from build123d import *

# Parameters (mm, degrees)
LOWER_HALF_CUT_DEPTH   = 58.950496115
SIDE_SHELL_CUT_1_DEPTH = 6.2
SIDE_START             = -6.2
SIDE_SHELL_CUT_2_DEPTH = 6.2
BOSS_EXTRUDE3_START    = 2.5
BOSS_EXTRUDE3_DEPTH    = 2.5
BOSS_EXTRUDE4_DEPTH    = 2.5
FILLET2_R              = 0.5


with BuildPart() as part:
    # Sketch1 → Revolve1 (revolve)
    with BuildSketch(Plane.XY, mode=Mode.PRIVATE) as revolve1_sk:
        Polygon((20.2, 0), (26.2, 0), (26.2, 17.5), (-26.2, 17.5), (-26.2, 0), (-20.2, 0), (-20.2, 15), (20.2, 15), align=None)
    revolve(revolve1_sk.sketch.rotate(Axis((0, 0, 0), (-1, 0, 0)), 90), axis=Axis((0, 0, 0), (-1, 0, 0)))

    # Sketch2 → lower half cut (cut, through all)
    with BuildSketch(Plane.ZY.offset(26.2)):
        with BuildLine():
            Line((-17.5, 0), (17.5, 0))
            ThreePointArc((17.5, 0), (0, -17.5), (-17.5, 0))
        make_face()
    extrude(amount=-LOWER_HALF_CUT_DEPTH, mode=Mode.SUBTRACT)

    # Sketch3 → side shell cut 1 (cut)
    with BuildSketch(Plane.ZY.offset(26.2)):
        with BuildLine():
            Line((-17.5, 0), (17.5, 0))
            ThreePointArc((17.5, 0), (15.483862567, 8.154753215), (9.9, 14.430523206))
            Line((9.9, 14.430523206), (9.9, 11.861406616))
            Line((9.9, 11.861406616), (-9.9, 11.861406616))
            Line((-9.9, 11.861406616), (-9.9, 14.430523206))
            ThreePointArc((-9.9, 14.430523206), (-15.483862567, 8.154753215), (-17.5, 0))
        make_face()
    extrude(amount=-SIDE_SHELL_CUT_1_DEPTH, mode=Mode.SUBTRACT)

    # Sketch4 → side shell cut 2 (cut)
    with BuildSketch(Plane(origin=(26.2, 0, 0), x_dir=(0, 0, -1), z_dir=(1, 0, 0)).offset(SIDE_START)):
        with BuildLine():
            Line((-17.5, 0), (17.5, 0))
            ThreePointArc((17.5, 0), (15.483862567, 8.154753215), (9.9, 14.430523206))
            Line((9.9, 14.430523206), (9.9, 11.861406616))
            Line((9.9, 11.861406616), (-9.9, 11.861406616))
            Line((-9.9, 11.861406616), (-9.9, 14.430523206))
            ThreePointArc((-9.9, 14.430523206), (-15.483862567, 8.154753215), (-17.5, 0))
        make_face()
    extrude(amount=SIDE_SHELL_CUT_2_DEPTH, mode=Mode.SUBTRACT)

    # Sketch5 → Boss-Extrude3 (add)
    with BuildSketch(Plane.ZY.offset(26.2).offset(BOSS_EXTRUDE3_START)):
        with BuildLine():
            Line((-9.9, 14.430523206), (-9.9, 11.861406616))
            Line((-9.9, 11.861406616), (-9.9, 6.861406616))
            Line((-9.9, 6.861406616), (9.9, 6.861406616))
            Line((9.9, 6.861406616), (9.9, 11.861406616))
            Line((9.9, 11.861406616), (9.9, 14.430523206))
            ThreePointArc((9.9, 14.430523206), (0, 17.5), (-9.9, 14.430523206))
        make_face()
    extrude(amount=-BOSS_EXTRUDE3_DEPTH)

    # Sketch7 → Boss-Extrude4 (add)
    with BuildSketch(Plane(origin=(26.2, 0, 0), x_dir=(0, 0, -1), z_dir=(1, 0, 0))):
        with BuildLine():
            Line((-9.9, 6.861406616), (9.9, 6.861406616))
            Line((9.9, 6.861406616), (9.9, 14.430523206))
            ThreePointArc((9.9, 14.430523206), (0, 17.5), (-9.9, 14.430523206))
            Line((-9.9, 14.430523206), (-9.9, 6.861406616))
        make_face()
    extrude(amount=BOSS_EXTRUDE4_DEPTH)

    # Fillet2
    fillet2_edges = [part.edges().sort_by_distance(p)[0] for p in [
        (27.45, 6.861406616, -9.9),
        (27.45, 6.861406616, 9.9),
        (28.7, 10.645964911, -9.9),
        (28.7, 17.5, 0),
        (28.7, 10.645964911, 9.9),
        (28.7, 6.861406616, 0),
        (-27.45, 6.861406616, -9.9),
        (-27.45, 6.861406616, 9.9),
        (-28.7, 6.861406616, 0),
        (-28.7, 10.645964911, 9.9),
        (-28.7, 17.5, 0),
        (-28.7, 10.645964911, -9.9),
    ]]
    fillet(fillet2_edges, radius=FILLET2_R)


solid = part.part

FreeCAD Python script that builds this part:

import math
import FreeCAD as App
import Part
import Sketcher
from FreeCAD import Vector
Q = App.Units.Quantity


def edges_at(feature, points):
    """Names of the edges that pass closest to the given points."""
    edges = feature.Shape.Edges
    near = lambda p: min(range(len(edges)), key=lambda i: edges[i].distToShape(Part.Vertex(*p))[0])
    return sorted({f"Edge{near(p) + 1}" for p in points})


def add_polygon(sketch, points):
    """Adds a closed chain of lines whose ends are joined by coincident constraints."""
    first, n = sketch.GeometryCount, len(points)
    for a, b in zip(points, points[1:] + points[:1]):
        sketch.addGeometry(Part.LineSegment(App.Vector(*a, 0), App.Vector(*b, 0)), False)
    for i in range(n):
        sketch.addConstraint(Sketcher.Constraint("Coincident", first + i, 2, first + (i + 1) % n, 1))

doc = App.newDocument("Part")
body = doc.addObject("PartDesign::Body", "Body")

# Sketch on XY plane
sketch1 = doc.addObject("Sketcher::SketchObject", "Sketch")
body.addObject(sketch1)
sketch1.AttachmentSupport = (doc.XY_Plane, [""])
sketch1.MapMode = "FlatFace"
add_polygon(sketch1, [(20, 0), (26, 0), (26, 18), (-26, 18), (-26, 0), (-20, 0), (-20, 15), (20, 15)])  # lines 0-7
sketch1.addConstraint([
    Sketcher.Constraint("Horizontal", 0),
    Sketcher.Constraint("Vertical", 1),
    Sketcher.Constraint("Horizontal", 2),
    Sketcher.Constraint("Vertical", 3),
    Sketcher.Constraint("Horizontal", 4),
    Sketcher.Constraint("Vertical", 5),
    Sketcher.Constraint("Horizontal", 6),
    Sketcher.Constraint("Vertical", 7),
    Sketcher.Constraint("Symmetric", 0, 2, 3, 2, -1, 1),
    Sketcher.Constraint("Symmetric", 4, 2, 7, 2, -2),
    Sketcher.Constraint("DistanceX", 0, 1, 0, 2, Q("6 mm")),
    Sketcher.Constraint("DistanceY", 5, 1, 5, 2, Q("15 mm")),
    Sketcher.Constraint("DistanceX", 2, 2, 2, 1, Q("52.4 mm")),
    Sketcher.Constraint("DistanceY", 1, 1, 1, 2, Q("17.5 mm")),
])
revolution = doc.addObject("PartDesign::Revolution", "Revolution")
body.addObject(revolution)
revolution.Profile = sketch1
revolution.ReferenceAxis = (sketch1, ["H_Axis"])
revolution.Angle = 360

# Sketch on YZ plane
sketch2 = doc.addObject("Sketcher::SketchObject", "Sketch001")
body.addObject(sketch2)
sketch2.AttachmentSupport = (doc.YZ_Plane, [""])
sketch2.MapMode = "FlatFace"
sketch2.AttachmentOffset = App.Placement(Vector(0, 0, -26.2), App.Rotation())
sketch2.addGeometry([
    Part.LineSegment(Vector(0, 18, 0), Vector(0, -18, 0)),
    Part.ArcOfCircle(Part.Circle(Vector(0, 0, 0), Vector(0, 0, 1), 18), math.radians(90), math.radians(270)),
], False)
sketch2.addConstraint([
    Sketcher.Constraint("Coincident", 0, 1, 1, 1),
    Sketcher.Constraint("Coincident", 1, 2, 0, 2),
    Sketcher.Constraint("Vertical", 0),
    Sketcher.Constraint("Coincident", 1, 3, -1, 1),
    Sketcher.Constraint("PointOnObject", 0, 1, -2),
    Sketcher.Constraint("Radius", 1, Q("17.5 mm")),
])
pocket1 = doc.addObject("PartDesign::Pocket", "Pocket")
body.addObject(pocket1)
pocket1.Profile = sketch2
pocket1.Type = "ThroughAll"
pocket1.Reversed = True

# Sketch on YZ plane
sketch3 = doc.addObject("Sketcher::SketchObject", "Sketch002")
body.addObject(sketch3)
sketch3.AttachmentSupport = (doc.YZ_Plane, [""])
sketch3.MapMode = "FlatFace"
sketch3.AttachmentOffset = App.Placement(Vector(0, 0, -26.2), App.Rotation())
sketch3.addGeometry([
    Part.LineSegment(Vector(0, -17.5, 0), Vector(0, 17.5, 0)),  # 0
    Part.ArcOfCircle(Part.Circle(Vector(0, 0, 0), Vector(0, 0, 1), 17.5), math.radians(34), math.radians(90)),  # 1
    Part.LineSegment(Vector(14.4, 9.9, 0), Vector(11.9, 9.9, 0)),  # 2
    Part.LineSegment(Vector(11.9, 9.9, 0), Vector(11.9, -9.9, 0)),  # 3
    Part.LineSegment(Vector(11.9, -9.9, 0), Vector(14.4, -9.9, 0)),  # 4
    Part.ArcOfCircle(Part.Circle(Vector(0, 0, 0), Vector(0, 0, 1), 17.5), math.radians(-90), math.radians(-34)),  # 5
], False)
sketch3.addConstraint([
    Sketcher.Constraint("Coincident", 0, 2, 1, 2),
    Sketcher.Constraint("Coincident", 1, 1, 2, 1),
    Sketcher.Constraint("Coincident", 2, 2, 3, 1),
    Sketcher.Constraint("Coincident", 3, 2, 4, 1),
    Sketcher.Constraint("Coincident", 4, 2, 5, 2),
    Sketcher.Constraint("Coincident", 5, 1, 0, 1),
    Sketcher.Constraint("Vertical", 0),
    Sketcher.Constraint("Horizontal", 2),
    Sketcher.Constraint("Vertical", 3),
    Sketcher.Constraint("Horizontal", 4),
    Sketcher.Constraint("Coincident", 1, 3, -1, 1),
    Sketcher.Constraint("Coincident", 5, 3, -1, 1),
    Sketcher.Constraint("Equal", 1, 5),
    Sketcher.Constraint("PointOnObject", 0, 2, -2),
    Sketcher.Constraint("Vertical", 1, 1, 4, 2),
    Sketcher.Constraint("Radius", 1, Q("17.5 mm")),
    Sketcher.Constraint("DistanceY", 3, 2, 3, 1, Q("19.8 mm")),
    Sketcher.Constraint("DistanceX", 2, 2, 2, 1, Q("2.569117 mm")),
])
pocket2 = doc.addObject("PartDesign::Pocket", "Pocket001")
body.addObject(pocket2)
pocket2.Profile = sketch3
pocket2.Length = 6.2
pocket2.Reversed = True

# Sketch on YZ plane
sketch4 = doc.addObject("Sketcher::SketchObject", "Sketch003")
body.addObject(sketch4)
sketch4.AttachmentSupport = (doc.YZ_Plane, [""])
sketch4.MapMode = "FlatFace"
sketch4.AttachmentOffset = App.Placement(Vector(0, 0, 20), App.Rotation())
sketch4.addGeometry([
    Part.LineSegment(Vector(0, 17.5, 0), Vector(0, -17.5, 0)),  # 0
    Part.ArcOfCircle(Part.Circle(Vector(0, 0, 0), Vector(0, 0, 1), 17.5), math.radians(-90), math.radians(-34)),  # 1
    Part.LineSegment(Vector(14.4, -9.9, 0), Vector(11.9, -9.9, 0)),  # 2
    Part.LineSegment(Vector(11.9, -9.9, 0), Vector(11.9, 9.9, 0)),  # 3
    Part.LineSegment(Vector(11.9, 9.9, 0), Vector(14.4, 9.9, 0)),  # 4
    Part.ArcOfCircle(Part.Circle(Vector(0, 0, 0), Vector(0, 0, 1), 17.5), math.radians(34), math.radians(90)),  # 5
], False)
sketch4.addConstraint([
    Sketcher.Constraint("Coincident", 0, 2, 1, 1),
    Sketcher.Constraint("Coincident", 1, 2, 2, 1),
    Sketcher.Constraint("Coincident", 2, 2, 3, 1),
    Sketcher.Constraint("Coincident", 3, 2, 4, 1),
    Sketcher.Constraint("Coincident", 4, 2, 5, 1),
    Sketcher.Constraint("Coincident", 5, 2, 0, 1),
    Sketcher.Constraint("Vertical", 0),
    Sketcher.Constraint("Horizontal", 2),
    Sketcher.Constraint("Vertical", 3),
    Sketcher.Constraint("Horizontal", 4),
    Sketcher.Constraint("Coincident", 1, 3, -1, 1),
    Sketcher.Constraint("Coincident", 5, 3, -1, 1),
    Sketcher.Constraint("Equal", 1, 5),
    Sketcher.Constraint("PointOnObject", 0, 2, -2),
    Sketcher.Constraint("Vertical", 1, 2, 4, 2),
    Sketcher.Constraint("Radius", 1, Q("17.5 mm")),
    Sketcher.Constraint("DistanceY", 3, 1, 3, 2, Q("19.8 mm")),
    Sketcher.Constraint("DistanceX", 2, 2, 2, 1, Q("2.569117 mm")),
])
pocket3 = doc.addObject("PartDesign::Pocket", "Pocket002")
body.addObject(pocket3)
pocket3.Profile = sketch4
pocket3.Length = 6.2
pocket3.Reversed = True

# Sketch on YZ plane
sketch5 = doc.addObject("Sketcher::SketchObject", "Sketch004")
body.addObject(sketch5)
sketch5.AttachmentSupport = (doc.YZ_Plane, [""])
sketch5.MapMode = "FlatFace"
sketch5.AttachmentOffset = App.Placement(Vector(0, 0, -28.7), App.Rotation())
sketch5.addGeometry([
    Part.LineSegment(Vector(14, -10, 0), Vector(7, -10, 0)),
    Part.LineSegment(Vector(7, -10, 0), Vector(7, 10, 0)),
    Part.LineSegment(Vector(7, 10, 0), Vector(14, 10, 0)),
    Part.ArcOfCircle(Part.Circle(Vector(0, 0, 0), Vector(0, 0, 1), 18), math.radians(-34), math.radians(34)),
], False)
sketch5.addConstraint([
    Sketcher.Constraint("Coincident", 0, 2, 1, 1),
    Sketcher.Constraint("Coincident", 1, 2, 2, 1),
    Sketcher.Constraint("Coincident", 2, 2, 3, 2),
    Sketcher.Constraint("Coincident", 3, 1, 0, 1),
    Sketcher.Constraint("Horizontal", 0),
    Sketcher.Constraint("Vertical", 1),
    Sketcher.Constraint("Horizontal", 2),
    Sketcher.Constraint("Coincident", 3, 3, -1, 1),
    Sketcher.Constraint("Vertical", 2, 2, 3, 1),
    Sketcher.Constraint("Radius", 3, Q("17.5 mm")),
    Sketcher.Constraint("DistanceY", 1, 1, 1, 2, Q("19.8 mm")),
    Sketcher.Constraint("DistanceX", 0, 2, 0, 1, Q("7.569117 mm")),
])
pad1 = doc.addObject("PartDesign::Pad", "Pad")
body.addObject(pad1)
pad1.Profile = sketch5
pad1.Length = 2.5

# Sketch on YZ plane
sketch6 = doc.addObject("Sketcher::SketchObject", "Sketch005")
body.addObject(sketch6)
sketch6.AttachmentSupport = (doc.YZ_Plane, [""])
sketch6.MapMode = "FlatFace"
sketch6.AttachmentOffset = App.Placement(Vector(0, 0, 26.2), App.Rotation())
sketch6.addGeometry([
    Part.LineSegment(Vector(7, 10, 0), Vector(7, -10, 0)),
    Part.LineSegment(Vector(7, -10, 0), Vector(14, -10, 0)),
    Part.ArcOfCircle(Part.Circle(Vector(0, 0, 0), Vector(0, 0, 1), 18), math.radians(-34), math.radians(34)),
    Part.LineSegment(Vector(14, 10, 0), Vector(7, 10, 0)),
], False)
sketch6.addConstraint([
    Sketcher.Constraint("Coincident", 0, 2, 1, 1),
    Sketcher.Constraint("Coincident", 1, 2, 2, 1),
    Sketcher.Constraint("Coincident", 2, 2, 3, 1),
    Sketcher.Constraint("Coincident", 3, 2, 0, 1),
    Sketcher.Constraint("Vertical", 0),
    Sketcher.Constraint("Horizontal", 1),
    Sketcher.Constraint("Horizontal", 3),
    Sketcher.Constraint("Coincident", 2, 3, -1, 1),
    Sketcher.Constraint("Vertical", 1, 2, 2, 2),
    Sketcher.Constraint("Radius", 2, Q("17.5 mm")),
    Sketcher.Constraint("DistanceY", 0, 2, 0, 1, Q("19.8 mm")),
    Sketcher.Constraint("DistanceX", 1, 1, 1, 2, Q("7.569117 mm")),
])
pad2 = doc.addObject("PartDesign::Pad", "Pad001")
body.addObject(pad2)
pad2.Profile = sketch6
pad2.Length = 2.5
doc.recompute()

fillet = doc.addObject("PartDesign::Fillet", "Fillet")
body.addObject(fillet)
fillet.Base = (pad2, edges_at(pad2, [
    (27.45, 6.861, -9.9),
    (27.45, 6.861, 9.9),
    (28.7, 10.646, -9.9),
    (28.7, 17.5, 0),
    (28.7, 10.646, 9.9),
    (28.7, 6.861, 0),
    (-27.45, 6.861, -9.9),
    (-27.45, 6.861, 9.9),
    (-28.7, 6.861, 0),
    (-28.7, 10.646, 9.9),
    (-28.7, 17.5, 0),
    (-28.7, 10.646, -9.9),
]))
fillet.Radius = 0.5

doc.recompute()
